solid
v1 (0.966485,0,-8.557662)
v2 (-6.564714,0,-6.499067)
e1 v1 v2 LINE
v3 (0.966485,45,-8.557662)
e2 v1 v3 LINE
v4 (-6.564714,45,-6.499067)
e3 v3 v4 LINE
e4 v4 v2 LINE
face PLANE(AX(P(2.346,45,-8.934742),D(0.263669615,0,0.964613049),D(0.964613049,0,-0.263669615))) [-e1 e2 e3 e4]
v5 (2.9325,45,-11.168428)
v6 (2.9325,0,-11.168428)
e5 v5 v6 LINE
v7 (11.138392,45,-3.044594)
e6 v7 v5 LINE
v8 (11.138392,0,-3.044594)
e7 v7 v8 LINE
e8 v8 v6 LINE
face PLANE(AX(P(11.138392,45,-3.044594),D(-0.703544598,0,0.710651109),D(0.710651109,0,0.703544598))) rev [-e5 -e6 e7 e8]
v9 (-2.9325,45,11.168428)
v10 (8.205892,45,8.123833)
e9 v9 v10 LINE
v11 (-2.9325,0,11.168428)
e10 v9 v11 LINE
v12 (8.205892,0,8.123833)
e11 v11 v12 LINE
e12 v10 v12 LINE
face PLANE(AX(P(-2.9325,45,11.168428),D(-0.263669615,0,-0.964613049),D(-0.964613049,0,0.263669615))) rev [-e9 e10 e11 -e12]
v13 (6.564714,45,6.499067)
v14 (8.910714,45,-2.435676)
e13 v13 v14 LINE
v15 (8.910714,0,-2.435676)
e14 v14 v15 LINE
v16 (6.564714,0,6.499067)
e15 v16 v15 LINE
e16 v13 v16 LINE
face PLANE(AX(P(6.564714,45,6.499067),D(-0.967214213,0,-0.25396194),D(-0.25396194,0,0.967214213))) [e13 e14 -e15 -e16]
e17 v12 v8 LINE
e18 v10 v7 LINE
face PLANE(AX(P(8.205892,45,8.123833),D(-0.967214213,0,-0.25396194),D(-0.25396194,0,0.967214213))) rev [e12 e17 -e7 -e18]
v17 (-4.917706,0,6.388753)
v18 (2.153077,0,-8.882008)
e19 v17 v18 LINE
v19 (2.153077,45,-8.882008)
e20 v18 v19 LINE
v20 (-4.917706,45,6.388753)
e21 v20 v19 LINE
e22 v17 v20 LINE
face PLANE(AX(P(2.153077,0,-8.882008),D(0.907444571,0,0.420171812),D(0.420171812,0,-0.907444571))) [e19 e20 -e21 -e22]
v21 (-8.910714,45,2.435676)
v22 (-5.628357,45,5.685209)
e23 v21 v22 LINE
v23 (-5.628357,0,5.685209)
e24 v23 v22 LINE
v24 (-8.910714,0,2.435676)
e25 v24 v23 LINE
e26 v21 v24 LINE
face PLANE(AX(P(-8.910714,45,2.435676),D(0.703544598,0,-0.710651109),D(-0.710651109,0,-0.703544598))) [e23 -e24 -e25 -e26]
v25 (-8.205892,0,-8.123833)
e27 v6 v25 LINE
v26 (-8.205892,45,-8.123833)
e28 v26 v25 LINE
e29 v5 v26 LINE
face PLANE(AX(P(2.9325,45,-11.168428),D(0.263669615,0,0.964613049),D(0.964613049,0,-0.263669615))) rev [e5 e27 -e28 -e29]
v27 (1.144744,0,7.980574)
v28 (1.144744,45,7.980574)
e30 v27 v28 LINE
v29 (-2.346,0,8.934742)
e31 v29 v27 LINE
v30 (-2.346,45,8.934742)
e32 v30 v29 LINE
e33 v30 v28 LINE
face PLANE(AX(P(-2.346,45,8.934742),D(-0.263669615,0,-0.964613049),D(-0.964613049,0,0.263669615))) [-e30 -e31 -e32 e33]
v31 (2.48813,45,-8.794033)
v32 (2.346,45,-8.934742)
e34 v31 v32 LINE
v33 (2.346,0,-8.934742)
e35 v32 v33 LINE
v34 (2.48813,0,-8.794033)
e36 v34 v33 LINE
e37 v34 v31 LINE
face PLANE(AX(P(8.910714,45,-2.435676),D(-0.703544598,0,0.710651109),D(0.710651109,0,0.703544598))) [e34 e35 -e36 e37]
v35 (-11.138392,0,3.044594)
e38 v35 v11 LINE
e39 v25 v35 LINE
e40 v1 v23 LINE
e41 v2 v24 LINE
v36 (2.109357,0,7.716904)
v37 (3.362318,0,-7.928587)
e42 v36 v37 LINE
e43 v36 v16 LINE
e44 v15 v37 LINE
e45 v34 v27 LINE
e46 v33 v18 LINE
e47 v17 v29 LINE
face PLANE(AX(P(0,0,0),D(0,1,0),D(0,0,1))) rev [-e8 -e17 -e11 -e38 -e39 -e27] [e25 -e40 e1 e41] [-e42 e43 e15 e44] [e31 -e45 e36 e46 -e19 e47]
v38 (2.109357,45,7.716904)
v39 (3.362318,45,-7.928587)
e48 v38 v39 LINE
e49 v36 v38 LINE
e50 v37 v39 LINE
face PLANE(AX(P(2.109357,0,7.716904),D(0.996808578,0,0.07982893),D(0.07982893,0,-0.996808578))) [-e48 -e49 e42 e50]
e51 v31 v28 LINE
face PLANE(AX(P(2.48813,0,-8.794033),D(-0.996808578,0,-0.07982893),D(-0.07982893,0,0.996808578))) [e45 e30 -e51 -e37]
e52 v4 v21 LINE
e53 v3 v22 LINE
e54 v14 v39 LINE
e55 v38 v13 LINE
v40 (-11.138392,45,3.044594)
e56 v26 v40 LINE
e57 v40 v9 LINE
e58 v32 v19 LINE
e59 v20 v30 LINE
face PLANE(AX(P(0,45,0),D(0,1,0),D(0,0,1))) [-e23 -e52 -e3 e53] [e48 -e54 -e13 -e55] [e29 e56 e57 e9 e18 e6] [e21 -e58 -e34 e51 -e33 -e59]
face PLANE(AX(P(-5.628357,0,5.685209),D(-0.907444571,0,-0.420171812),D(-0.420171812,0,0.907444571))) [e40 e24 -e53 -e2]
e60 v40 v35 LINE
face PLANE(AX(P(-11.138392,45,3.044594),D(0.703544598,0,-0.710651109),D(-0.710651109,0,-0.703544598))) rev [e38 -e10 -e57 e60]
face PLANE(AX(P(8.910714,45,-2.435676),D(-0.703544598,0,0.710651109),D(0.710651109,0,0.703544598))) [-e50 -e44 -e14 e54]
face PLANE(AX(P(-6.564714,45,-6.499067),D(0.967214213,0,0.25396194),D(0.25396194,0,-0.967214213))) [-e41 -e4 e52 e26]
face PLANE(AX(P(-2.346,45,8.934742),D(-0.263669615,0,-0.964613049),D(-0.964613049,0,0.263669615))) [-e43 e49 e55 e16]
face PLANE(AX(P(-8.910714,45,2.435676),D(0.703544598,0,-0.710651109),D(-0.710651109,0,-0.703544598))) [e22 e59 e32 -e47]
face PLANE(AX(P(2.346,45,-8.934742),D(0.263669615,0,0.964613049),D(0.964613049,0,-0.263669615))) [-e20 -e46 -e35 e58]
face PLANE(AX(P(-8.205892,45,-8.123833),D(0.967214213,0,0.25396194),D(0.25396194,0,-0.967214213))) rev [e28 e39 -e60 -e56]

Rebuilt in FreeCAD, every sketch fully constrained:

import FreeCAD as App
import Part
import Sketcher

V = App.Vector
Q = App.Units.Quantity


def add_polygon(sketch, points):
    """Adds a closed chain of lines whose ends are joined by coincident constraints."""
    first, n = sketch.GeometryCount, len(points)
    for a, b in zip(points, points[1:] + points[:1]):
        sketch.addGeometry(Part.LineSegment(App.Vector(*a, 0), App.Vector(*b, 0)), False)
    for i in range(n):
        sketch.addConstraint(Sketcher.Constraint("Coincident", first + i, 2, first + (i + 1) % n, 1))

doc = App.newDocument("Part")
params = doc.addObject("Spreadsheet::Sheet", "Params")
for row, (alias, value) in enumerate([
    ("pad1_length", "45 mm"),
    ("sketch2_length", "1 mm"),
    ("pad2_length", "45 mm"),
], start=1):
    params.set(f"A{row}", alias)
    params.set(f"B{row}", "=" + value)
    params.setAlias(f"B{row}", alias)

body = doc.addObject("PartDesign::Body", "Body")

# Sketch on XZ plane
sketch1 = doc.addObject("Sketcher::SketchObject", "Sketch")
body.addObject(sketch1)
sketch1.AttachmentSupport = (doc.XZ_Plane, [""])
sketch1.MapMode = "FlatFace"
add_polygon(sketch1, [(8.205892, 8.123833), (11.138392, -3.044594), (2.9325, -11.168428), (-8.205892, -8.123833), (-11.138392, 3.044594), (-2.9325, 11.168428)])  # lines 0-5
add_polygon(sketch1, [(6.564714, 6.499067), (-2.346, 8.934742), (-8.910714, 2.435676), (-6.564714, -6.499067), (2.346, -8.934742), (8.910714, -2.435676)])  # lines 6-11
sketch1.addConstraint([
    Sketcher.Constraint("Symmetric", 0, 2, 3, 2, -1, 1),
    Sketcher.Constraint("Symmetric", 1, 2, 4, 2, -1, 1),
    Sketcher.Constraint("Symmetric", 2, 2, 5, 2, -1, 1),
    Sketcher.Constraint("Symmetric", 6, 2, 9, 2, -1, 1),
    Sketcher.Constraint("Symmetric", 7, 2, 10, 2, -1, 1),
    Sketcher.Constraint("Symmetric", 8, 2, 11, 2, -1, 1),
    Sketcher.Constraint("Parallel", 5, 6),
    Sketcher.Constraint("Parallel", 4, 7),
    Sketcher.Constraint("Parallel", 3, 8),
    Sketcher.Constraint("Equal", 0, 1),
    Sketcher.Constraint("Equal", 1, 2),
    Sketcher.Constraint("Equal", 6, 7),
    Sketcher.Constraint("Equal", 7, 8),
    Sketcher.Constraint("DistanceX", 6, 2, -1, 1, Q("2.346 mm")),
    Sketcher.Constraint("DistanceX", 4, 2, 1, 2, Q("5.865 mm")),
    Sketcher.Constraint("DistanceX", 7, 2, 8, 2, Q("2.346 mm")),
    Sketcher.Constraint("DistanceY", 2, 2, 0, 2, Q("5.079239 mm")),
    Sketcher.Constraint("DistanceX", 3, 2, 1, 2, Q("14.070892 mm")),
])
pad1 = doc.addObject("PartDesign::Pad", "Pad")
body.addObject(pad1)
pad1.Profile = sketch1
pad1.setExpression("Length", "Params.pad1_length")
pad1.Reversed = True

# Sketch on XZ plane
sketch2 = doc.addObject("Sketcher::SketchObject", "Sketch001")
body.addObject(sketch2)
sketch2.AttachmentSupport = (doc.XZ_Plane, [""])
sketch2.MapMode = "FlatFace"
sketch2.AttachmentOffset = App.Placement(V(0, 0, -45), App.Rotation())
add_polygon(sketch2, [(0.966485, -8.557662), (-5.628357, 5.685209), (-4.917706, 6.388753), (2.153077, -8.882008)])  # lines 0-3
add_polygon(sketch2, [(2.109357, 7.716904), (3.362318, -7.928587), (2.48813, -8.794033), (1.144744, 7.980574)])  # lines 4-7
sketch2.addConstraint([
    Sketcher.Constraint("Parallel", 0, 2),
    Sketcher.Constraint("Parallel", 1, 5),
    Sketcher.Constraint("Parallel", 4, 6),
    Sketcher.Constraint("Parallel", 3, 7),
    Sketcher.Constraint("Equal", 0, 4),
    Sketcher.Constraint("Equal", 3, 5),
    Sketcher.Constraint("Equal", 2, 6),
    Sketcher.Constraint("Distance", 1, Q("1 mm")),
    Sketcher.Constraint("DistanceX", 0, 2, 6, 2, Q("6.773101 mm")),
    Sketcher.Constraint("DistanceY", -1, 1, 0, 2, Q("5.685209 mm")),
    Sketcher.Constraint("DistanceY", 2, 2, -1, 1, Q("8.882008 mm")),
    Sketcher.Constraint("DistanceX", -1, 1, 4, 2, Q("3.362318 mm")),
    Sketcher.Constraint("DistanceX", -1, 1, 5, 2, Q("2.48813 mm")),
    Sketcher.Constraint("DistanceX", 0, 2, 1, 2, Q("0.710651 mm")),
    Sketcher.Constraint("DistanceX", 0, 2, 3, 2, Q("6.594841 mm")),
    Sketcher.Constraint("DistanceY", 2, 2, 4, 2, Q("0.953421 mm")),
])
sketch2.setExpression("Constraints[15]", "Params.sketch2_length")
pad2 = doc.addObject("PartDesign::Pad", "Pad001")
body.addObject(pad2)
pad2.Profile = sketch2
pad2.setExpression("Length", "Params.pad2_length")

doc.recompute()
